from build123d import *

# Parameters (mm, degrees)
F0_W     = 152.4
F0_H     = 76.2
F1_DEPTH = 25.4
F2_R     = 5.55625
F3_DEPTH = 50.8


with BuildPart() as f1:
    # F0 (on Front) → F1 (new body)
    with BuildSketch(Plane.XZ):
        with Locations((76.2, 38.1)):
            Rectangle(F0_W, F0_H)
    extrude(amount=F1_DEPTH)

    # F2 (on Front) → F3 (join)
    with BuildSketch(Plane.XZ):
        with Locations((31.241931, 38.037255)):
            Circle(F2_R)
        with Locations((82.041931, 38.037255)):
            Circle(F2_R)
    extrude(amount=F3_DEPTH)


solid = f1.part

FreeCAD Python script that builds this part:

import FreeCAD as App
import Part
import Sketcher

V = App.Vector
Q = App.Units.Quantity


def add_polygon(sketch, points):
    """Adds a closed chain of lines whose ends are joined by coincident constraints."""
    first, n = sketch.GeometryCount, len(points)
    for a, b in zip(points, points[1:] + points[:1]):
        sketch.addGeometry(Part.LineSegment(App.Vector(*a, 0), App.Vector(*b, 0)), False)
    for i in range(n):
        sketch.addConstraint(Sketcher.Constraint("Coincident", first + i, 2, first + (i + 1) % n, 1))

doc = App.newDocument("Part")
body = doc.addObject("PartDesign::Body", "Body")

# Sketch on XZ plane
sketch1 = body.newObject("Sketcher::SketchObject", "Sketch")
sketch1.AttachmentSupport = (doc.getObject("XZ_Plane"), [""])
sketch1.MapMode = "FlatFace"
add_polygon(sketch1, [(0, 76.2), (0, 0), (152.4, 0), (152.4, 76.2)])  # lines 0-3
sketch1.addConstraint([
    Sketcher.Constraint("Vertical", 0),
    Sketcher.Constraint("Horizontal", 1),
    Sketcher.Constraint("Vertical", 2),
    Sketcher.Constraint("Horizontal", 3),
    Sketcher.Constraint("Coincident", 0, 2, -1, 1),
    Sketcher.Constraint("DistanceX", 1, 1, 1, 2, Q("6 in")),
    Sketcher.Constraint("DistanceY", 0, 2, 0, 1, Q("3 in")),
])
pad1 = body.newObject("PartDesign::Pad", "Pad")
pad1.Profile = sketch1
pad1.Length = Q("1 in")

# Sketch on XZ plane
sketch2 = body.newObject("Sketcher::SketchObject", "Sketch001")
sketch2.AttachmentSupport = (doc.getObject("XZ_Plane"), [""])
sketch2.MapMode = "FlatFace"
sketch2.addGeometry([
    Part.Circle(V(31.241931, 38.037255, 0), V(0, 0, 1), 5.55625),
    Part.Circle(V(82.041931, 38.037255, 0), V(0, 0, 1), 5.55625),
], False)
sketch2.addConstraint([
    Sketcher.Constraint("Equal", 0, 1),
    Sketcher.Constraint("Horizontal", 0, 3, 1, 3),
    Sketcher.Constraint("Diameter", 0, Q("0.4375 in")),
    Sketcher.Constraint("DistanceX", 0, 3, 1, 3, Q("2 in")),
    Sketcher.Constraint("DistanceX", -1, 1, 0, 3, 31.241931),
    Sketcher.Constraint("DistanceY", -1, 1, 0, 3, 38.037255),
])
pad2 = body.newObject("PartDesign::Pad", "Pad001")
pad2.Profile = sketch2
pad2.Length = Q("2 in")

doc.recompute()
